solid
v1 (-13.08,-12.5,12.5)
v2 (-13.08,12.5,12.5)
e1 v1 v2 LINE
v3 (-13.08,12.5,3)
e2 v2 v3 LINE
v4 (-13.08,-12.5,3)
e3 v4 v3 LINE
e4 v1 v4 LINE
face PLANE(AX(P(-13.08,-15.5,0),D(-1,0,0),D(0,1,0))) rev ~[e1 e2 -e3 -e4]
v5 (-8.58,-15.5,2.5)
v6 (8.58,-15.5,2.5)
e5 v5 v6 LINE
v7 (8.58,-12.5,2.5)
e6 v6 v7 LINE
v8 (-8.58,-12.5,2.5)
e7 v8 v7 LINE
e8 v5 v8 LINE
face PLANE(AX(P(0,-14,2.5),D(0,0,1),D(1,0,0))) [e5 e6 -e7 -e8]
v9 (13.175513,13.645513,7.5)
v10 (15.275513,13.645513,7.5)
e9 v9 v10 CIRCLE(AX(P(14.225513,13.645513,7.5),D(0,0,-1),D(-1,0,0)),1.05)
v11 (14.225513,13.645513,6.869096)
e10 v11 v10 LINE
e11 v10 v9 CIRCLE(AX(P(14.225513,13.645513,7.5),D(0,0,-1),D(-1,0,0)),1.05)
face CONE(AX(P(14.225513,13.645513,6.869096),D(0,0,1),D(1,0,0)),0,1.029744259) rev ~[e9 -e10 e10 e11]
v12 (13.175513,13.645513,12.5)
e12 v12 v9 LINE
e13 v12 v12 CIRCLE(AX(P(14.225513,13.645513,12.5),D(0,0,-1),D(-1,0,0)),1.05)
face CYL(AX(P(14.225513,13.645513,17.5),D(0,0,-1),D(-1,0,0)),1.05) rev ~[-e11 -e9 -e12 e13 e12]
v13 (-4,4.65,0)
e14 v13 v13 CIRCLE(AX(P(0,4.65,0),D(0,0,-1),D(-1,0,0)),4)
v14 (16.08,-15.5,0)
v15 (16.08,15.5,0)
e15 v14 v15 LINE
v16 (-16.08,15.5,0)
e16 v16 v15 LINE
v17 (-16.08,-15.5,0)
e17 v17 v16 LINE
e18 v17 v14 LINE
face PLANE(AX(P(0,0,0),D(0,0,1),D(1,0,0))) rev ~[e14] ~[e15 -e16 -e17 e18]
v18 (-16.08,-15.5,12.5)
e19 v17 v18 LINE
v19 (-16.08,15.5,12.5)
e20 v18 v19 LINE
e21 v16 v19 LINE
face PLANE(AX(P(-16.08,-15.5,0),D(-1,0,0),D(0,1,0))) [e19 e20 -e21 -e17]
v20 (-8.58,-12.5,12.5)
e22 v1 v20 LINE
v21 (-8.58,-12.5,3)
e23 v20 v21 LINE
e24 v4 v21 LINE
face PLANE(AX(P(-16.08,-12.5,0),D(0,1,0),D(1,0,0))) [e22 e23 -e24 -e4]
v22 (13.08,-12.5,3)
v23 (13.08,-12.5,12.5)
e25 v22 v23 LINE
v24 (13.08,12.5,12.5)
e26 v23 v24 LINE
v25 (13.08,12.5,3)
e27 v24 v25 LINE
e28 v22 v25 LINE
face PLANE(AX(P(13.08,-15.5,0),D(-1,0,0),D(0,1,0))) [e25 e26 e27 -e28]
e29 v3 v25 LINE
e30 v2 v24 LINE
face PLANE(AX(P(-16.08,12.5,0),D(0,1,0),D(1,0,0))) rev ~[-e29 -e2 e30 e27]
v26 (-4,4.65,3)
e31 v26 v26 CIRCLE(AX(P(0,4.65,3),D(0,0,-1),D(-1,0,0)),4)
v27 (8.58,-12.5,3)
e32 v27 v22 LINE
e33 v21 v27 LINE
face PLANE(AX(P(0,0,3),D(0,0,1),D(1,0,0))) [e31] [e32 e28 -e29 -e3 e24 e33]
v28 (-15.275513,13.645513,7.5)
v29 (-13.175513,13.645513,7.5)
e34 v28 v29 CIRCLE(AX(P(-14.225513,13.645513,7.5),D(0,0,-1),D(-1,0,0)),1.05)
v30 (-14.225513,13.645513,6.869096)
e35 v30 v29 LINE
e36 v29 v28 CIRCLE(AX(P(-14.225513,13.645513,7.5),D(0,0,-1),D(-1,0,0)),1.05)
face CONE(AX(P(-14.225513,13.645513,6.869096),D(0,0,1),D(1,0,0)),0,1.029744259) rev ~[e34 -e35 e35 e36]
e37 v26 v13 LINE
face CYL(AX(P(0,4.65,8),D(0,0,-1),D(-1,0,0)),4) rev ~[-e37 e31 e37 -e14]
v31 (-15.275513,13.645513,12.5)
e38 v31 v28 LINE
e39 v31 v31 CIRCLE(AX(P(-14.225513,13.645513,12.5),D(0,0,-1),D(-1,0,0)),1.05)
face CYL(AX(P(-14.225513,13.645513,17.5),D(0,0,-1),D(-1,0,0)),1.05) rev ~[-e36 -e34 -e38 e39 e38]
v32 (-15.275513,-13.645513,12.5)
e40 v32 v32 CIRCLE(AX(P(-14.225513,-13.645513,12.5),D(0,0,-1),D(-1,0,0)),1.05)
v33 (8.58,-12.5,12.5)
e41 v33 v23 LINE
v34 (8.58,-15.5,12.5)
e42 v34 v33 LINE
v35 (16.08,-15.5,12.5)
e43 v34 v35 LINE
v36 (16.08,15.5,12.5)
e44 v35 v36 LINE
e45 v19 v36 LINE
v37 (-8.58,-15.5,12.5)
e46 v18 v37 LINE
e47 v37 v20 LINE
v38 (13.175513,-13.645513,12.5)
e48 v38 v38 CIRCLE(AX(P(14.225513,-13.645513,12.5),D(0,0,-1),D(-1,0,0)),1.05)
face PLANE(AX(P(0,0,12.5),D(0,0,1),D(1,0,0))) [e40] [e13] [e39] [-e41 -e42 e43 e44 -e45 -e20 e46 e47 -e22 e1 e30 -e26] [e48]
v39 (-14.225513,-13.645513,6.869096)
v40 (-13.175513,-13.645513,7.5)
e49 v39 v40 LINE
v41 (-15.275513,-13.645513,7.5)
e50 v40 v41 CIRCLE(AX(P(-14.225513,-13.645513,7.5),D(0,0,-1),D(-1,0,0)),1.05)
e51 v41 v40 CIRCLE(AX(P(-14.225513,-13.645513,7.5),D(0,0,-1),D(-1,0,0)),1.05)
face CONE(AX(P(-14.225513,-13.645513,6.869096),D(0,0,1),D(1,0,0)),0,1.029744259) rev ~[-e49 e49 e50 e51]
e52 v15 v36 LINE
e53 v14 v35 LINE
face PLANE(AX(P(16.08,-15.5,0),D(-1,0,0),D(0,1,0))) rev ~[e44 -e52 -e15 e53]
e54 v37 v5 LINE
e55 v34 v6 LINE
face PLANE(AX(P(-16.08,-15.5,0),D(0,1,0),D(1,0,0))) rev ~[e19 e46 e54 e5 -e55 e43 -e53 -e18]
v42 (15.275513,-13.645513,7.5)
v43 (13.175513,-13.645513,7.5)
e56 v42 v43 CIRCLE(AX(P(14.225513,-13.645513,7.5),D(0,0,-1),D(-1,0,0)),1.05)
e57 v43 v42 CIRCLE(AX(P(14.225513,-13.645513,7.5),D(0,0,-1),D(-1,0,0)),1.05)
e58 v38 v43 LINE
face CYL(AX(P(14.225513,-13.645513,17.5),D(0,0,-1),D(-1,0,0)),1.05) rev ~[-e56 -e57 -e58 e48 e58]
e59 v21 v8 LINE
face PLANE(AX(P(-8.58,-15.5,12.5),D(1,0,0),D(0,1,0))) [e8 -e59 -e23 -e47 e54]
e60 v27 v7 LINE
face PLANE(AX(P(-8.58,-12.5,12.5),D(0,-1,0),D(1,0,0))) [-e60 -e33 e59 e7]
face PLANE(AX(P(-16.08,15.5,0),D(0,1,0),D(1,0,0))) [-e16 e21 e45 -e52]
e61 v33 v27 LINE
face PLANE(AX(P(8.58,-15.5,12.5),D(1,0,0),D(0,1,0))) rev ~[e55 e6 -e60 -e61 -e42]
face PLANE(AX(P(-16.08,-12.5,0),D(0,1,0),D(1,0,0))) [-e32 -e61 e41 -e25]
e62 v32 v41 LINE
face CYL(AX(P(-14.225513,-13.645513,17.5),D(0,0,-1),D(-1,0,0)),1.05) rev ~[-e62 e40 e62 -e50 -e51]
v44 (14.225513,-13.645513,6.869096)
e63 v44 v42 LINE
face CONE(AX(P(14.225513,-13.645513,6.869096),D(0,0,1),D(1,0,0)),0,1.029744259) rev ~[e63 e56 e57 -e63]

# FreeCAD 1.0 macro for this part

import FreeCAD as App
import Part
import Sketcher
from FreeCAD import Vector


def faces_at(feature, points):
    """Names of the faces that lie closest to the given points."""
    faces = feature.Shape.Faces
    near = lambda p: min(range(len(faces)), key=lambda i: faces[i].distToShape(Part.Vertex(*p))[0])
    return sorted({f"Face{near(p) + 1}" for p in points})

doc = App.newDocument("Part")
body = doc.addObject("PartDesign::Body", "Body")

# Sketch on XY plane
sketch1 = doc.addObject("Sketcher::SketchObject", "Sketch")
body.addObject(sketch1)
sketch1.AttachmentSupport = (doc.XY_Plane, [""])
sketch1.MapMode = "FlatFace"
sketch1.addGeometry([
    Part.LineSegment(Vector(-16, 16, 0), Vector(-16, -16, 0)),
    Part.LineSegment(Vector(-16, -16, 0), Vector(16, -16, 0)),
    Part.LineSegment(Vector(16, -16, 0), Vector(16, 16, 0)),
    Part.LineSegment(Vector(16, 16, 0), Vector(-16, 16, 0)),
], False)
sketch1.addConstraint([
    Sketcher.Constraint("Coincident", 0, 2, 1, 1),
    Sketcher.Constraint("Coincident", 1, 2, 2, 1),
    Sketcher.Constraint("Coincident", 2, 2, 3, 1),
    Sketcher.Constraint("Coincident", 3, 2, 0, 1),
    Sketcher.Constraint("Vertical", 0),
    Sketcher.Constraint("Horizontal", 1),
    Sketcher.Constraint("Vertical", 2),
    Sketcher.Constraint("Horizontal", 3),
    Sketcher.Constraint("Symmetric", 0, 2, 2, 2, -1, 1),
    Sketcher.Constraint("DistanceY", 0, 2, 0, 1, 31.0),
    Sketcher.Constraint("DistanceX", 1, 1, 1, 2, 32.16),
])
pad1 = doc.addObject("PartDesign::Pad", "Pad")
body.addObject(pad1)
pad1.Profile = sketch1
pad1.Length = 12.5
doc.recompute()

thickness = doc.addObject("PartDesign::Thickness", "Thickness")
body.addObject(thickness)
thickness.Base = (pad1, faces_at(pad1, [(0, 0, 12.5)]))
thickness.Value = 3
thickness.Reversed = True
thickness.Join = "Arc"

# Sketch on XY plane
sketch2 = doc.addObject("Sketcher::SketchObject", "Sketch001")
body.addObject(sketch2)
sketch2.AttachmentSupport = (doc.XY_Plane, [""])
sketch2.MapMode = "FlatFace"
sketch2.AttachmentOffset = App.Placement(Vector(0, 0, 12.5), App.Rotation())
sketch2.addGeometry([
    Part.LineSegment(Vector(-8.6, -12.5, 0), Vector(-8.6, -15.5, 0)),
    Part.LineSegment(Vector(-8.6, -15.5, 0), Vector(8.6, -15.5, 0)),
    Part.LineSegment(Vector(8.6, -15.5, 0), Vector(8.6, -12.5, 0)),
    Part.LineSegment(Vector(8.6, -12.5, 0), Vector(-8.6, -12.5, 0)),
], False)
sketch2.addConstraint([
    Sketcher.Constraint("Coincident", 0, 2, 1, 1),
    Sketcher.Constraint("Coincident", 1, 2, 2, 1),
    Sketcher.Constraint("Coincident", 2, 2, 3, 1),
    Sketcher.Constraint("Coincident", 3, 2, 0, 1),
    Sketcher.Constraint("Vertical", 0),
    Sketcher.Constraint("Horizontal", 1),
    Sketcher.Constraint("Vertical", 2),
    Sketcher.Constraint("Horizontal", 3),
    Sketcher.Constraint("DistanceY", 0, 2, 0, 1, 3.0),
    Sketcher.Constraint("DistanceX", 1, 1, 1, 2, 17.16),
    Sketcher.Constraint("DistanceY", 0, 2, -1, 1, 15.5),
    Sketcher.Constraint("DistanceX", 0, 2, -1, 1, 8.58),
])
pocket1 = doc.addObject("PartDesign::Pocket", "Pocket")
body.addObject(pocket1)
pocket1.Profile = sketch2
pocket1.Length = 10

# Sketch on XY plane
sketch3 = doc.addObject("Sketcher::SketchObject", "Sketch002")
body.addObject(sketch3)
sketch3.AttachmentSupport = (doc.XY_Plane, [""])
sketch3.MapMode = "FlatFace"
sketch3.AttachmentOffset = App.Placement(Vector(0, 0, 3), App.Rotation())
sketch3.addGeometry(Part.Circle(Vector(0, 4.7, 0), Vector(0, 0, 1), 4), False)
sketch3.addConstraint([
    Sketcher.Constraint("PointOnObject", 0, 3, -2),
    Sketcher.Constraint("Diameter", 0, 8.0),
    Sketcher.Constraint("DistanceY", -1, 1, 0, 3, 4.65),
])
doc.recompute()
hole = doc.addObject("PartDesign::Hole", "Hole")
body.addObject(hole)
hole.Profile = sketch3
hole.ThreadType = "None"
hole.Diameter = 8
hole.DepthType = "Dimension"
hole.Depth = 5
hole.DrillPoint = "Angled"
hole.DrillPointAngle = 118

# Sketch on XY plane
sketch4 = doc.addObject("Sketcher::SketchObject", "Sketch003")
body.addObject(sketch4)
sketch4.AttachmentSupport = (doc.XY_Plane, [""])
sketch4.MapMode = "FlatFace"
sketch4.AttachmentOffset = App.Placement(Vector(0, 0, 12.5), App.Rotation())
sketch4.addGeometry([
    Part.Circle(Vector(-14.2, -13.6, 0), Vector(0, 0, 1), 1.1),
    Part.Circle(Vector(14.2, -13.6, 0), Vector(0, 0, 1), 1.1),
    Part.Circle(Vector(14.2, 13.6, 0), Vector(0, 0, 1), 1.1),
    Part.Circle(Vector(-14.2, 13.6, 0), Vector(0, 0, 1), 1.1),
], False)
sketch4.addConstraint([
    Sketcher.Constraint("Equal", 0, 1),
    Sketcher.Constraint("Equal", 1, 2),
    Sketcher.Constraint("Equal", 2, 3),
    Sketcher.Constraint("Symmetric", 0, 3, 2, 3, -1, 1),
    Sketcher.Constraint("Symmetric", 1, 3, 3, 3, -1, 1),
    Sketcher.Constraint("Symmetric", 0, 3, 1, 3, -2),
    Sketcher.Constraint("Diameter", 0, 2.1),
    Sketcher.Constraint("DistanceX", 0, 3, -1, 1, 14.225513),
    Sketcher.Constraint("DistanceY", 0, 3, -1, 1, 13.645513),
])
doc.recompute()
hole2 = doc.addObject("PartDesign::Hole", "Hole001")
body.addObject(hole2)
hole2.Profile = sketch4
hole2.ThreadType = "None"
hole2.Diameter = 2.1
hole2.DepthType = "Dimension"
hole2.Depth = 5
hole2.DrillPoint = "Angled"
hole2.DrillPointAngle = 118

doc.recompute()
